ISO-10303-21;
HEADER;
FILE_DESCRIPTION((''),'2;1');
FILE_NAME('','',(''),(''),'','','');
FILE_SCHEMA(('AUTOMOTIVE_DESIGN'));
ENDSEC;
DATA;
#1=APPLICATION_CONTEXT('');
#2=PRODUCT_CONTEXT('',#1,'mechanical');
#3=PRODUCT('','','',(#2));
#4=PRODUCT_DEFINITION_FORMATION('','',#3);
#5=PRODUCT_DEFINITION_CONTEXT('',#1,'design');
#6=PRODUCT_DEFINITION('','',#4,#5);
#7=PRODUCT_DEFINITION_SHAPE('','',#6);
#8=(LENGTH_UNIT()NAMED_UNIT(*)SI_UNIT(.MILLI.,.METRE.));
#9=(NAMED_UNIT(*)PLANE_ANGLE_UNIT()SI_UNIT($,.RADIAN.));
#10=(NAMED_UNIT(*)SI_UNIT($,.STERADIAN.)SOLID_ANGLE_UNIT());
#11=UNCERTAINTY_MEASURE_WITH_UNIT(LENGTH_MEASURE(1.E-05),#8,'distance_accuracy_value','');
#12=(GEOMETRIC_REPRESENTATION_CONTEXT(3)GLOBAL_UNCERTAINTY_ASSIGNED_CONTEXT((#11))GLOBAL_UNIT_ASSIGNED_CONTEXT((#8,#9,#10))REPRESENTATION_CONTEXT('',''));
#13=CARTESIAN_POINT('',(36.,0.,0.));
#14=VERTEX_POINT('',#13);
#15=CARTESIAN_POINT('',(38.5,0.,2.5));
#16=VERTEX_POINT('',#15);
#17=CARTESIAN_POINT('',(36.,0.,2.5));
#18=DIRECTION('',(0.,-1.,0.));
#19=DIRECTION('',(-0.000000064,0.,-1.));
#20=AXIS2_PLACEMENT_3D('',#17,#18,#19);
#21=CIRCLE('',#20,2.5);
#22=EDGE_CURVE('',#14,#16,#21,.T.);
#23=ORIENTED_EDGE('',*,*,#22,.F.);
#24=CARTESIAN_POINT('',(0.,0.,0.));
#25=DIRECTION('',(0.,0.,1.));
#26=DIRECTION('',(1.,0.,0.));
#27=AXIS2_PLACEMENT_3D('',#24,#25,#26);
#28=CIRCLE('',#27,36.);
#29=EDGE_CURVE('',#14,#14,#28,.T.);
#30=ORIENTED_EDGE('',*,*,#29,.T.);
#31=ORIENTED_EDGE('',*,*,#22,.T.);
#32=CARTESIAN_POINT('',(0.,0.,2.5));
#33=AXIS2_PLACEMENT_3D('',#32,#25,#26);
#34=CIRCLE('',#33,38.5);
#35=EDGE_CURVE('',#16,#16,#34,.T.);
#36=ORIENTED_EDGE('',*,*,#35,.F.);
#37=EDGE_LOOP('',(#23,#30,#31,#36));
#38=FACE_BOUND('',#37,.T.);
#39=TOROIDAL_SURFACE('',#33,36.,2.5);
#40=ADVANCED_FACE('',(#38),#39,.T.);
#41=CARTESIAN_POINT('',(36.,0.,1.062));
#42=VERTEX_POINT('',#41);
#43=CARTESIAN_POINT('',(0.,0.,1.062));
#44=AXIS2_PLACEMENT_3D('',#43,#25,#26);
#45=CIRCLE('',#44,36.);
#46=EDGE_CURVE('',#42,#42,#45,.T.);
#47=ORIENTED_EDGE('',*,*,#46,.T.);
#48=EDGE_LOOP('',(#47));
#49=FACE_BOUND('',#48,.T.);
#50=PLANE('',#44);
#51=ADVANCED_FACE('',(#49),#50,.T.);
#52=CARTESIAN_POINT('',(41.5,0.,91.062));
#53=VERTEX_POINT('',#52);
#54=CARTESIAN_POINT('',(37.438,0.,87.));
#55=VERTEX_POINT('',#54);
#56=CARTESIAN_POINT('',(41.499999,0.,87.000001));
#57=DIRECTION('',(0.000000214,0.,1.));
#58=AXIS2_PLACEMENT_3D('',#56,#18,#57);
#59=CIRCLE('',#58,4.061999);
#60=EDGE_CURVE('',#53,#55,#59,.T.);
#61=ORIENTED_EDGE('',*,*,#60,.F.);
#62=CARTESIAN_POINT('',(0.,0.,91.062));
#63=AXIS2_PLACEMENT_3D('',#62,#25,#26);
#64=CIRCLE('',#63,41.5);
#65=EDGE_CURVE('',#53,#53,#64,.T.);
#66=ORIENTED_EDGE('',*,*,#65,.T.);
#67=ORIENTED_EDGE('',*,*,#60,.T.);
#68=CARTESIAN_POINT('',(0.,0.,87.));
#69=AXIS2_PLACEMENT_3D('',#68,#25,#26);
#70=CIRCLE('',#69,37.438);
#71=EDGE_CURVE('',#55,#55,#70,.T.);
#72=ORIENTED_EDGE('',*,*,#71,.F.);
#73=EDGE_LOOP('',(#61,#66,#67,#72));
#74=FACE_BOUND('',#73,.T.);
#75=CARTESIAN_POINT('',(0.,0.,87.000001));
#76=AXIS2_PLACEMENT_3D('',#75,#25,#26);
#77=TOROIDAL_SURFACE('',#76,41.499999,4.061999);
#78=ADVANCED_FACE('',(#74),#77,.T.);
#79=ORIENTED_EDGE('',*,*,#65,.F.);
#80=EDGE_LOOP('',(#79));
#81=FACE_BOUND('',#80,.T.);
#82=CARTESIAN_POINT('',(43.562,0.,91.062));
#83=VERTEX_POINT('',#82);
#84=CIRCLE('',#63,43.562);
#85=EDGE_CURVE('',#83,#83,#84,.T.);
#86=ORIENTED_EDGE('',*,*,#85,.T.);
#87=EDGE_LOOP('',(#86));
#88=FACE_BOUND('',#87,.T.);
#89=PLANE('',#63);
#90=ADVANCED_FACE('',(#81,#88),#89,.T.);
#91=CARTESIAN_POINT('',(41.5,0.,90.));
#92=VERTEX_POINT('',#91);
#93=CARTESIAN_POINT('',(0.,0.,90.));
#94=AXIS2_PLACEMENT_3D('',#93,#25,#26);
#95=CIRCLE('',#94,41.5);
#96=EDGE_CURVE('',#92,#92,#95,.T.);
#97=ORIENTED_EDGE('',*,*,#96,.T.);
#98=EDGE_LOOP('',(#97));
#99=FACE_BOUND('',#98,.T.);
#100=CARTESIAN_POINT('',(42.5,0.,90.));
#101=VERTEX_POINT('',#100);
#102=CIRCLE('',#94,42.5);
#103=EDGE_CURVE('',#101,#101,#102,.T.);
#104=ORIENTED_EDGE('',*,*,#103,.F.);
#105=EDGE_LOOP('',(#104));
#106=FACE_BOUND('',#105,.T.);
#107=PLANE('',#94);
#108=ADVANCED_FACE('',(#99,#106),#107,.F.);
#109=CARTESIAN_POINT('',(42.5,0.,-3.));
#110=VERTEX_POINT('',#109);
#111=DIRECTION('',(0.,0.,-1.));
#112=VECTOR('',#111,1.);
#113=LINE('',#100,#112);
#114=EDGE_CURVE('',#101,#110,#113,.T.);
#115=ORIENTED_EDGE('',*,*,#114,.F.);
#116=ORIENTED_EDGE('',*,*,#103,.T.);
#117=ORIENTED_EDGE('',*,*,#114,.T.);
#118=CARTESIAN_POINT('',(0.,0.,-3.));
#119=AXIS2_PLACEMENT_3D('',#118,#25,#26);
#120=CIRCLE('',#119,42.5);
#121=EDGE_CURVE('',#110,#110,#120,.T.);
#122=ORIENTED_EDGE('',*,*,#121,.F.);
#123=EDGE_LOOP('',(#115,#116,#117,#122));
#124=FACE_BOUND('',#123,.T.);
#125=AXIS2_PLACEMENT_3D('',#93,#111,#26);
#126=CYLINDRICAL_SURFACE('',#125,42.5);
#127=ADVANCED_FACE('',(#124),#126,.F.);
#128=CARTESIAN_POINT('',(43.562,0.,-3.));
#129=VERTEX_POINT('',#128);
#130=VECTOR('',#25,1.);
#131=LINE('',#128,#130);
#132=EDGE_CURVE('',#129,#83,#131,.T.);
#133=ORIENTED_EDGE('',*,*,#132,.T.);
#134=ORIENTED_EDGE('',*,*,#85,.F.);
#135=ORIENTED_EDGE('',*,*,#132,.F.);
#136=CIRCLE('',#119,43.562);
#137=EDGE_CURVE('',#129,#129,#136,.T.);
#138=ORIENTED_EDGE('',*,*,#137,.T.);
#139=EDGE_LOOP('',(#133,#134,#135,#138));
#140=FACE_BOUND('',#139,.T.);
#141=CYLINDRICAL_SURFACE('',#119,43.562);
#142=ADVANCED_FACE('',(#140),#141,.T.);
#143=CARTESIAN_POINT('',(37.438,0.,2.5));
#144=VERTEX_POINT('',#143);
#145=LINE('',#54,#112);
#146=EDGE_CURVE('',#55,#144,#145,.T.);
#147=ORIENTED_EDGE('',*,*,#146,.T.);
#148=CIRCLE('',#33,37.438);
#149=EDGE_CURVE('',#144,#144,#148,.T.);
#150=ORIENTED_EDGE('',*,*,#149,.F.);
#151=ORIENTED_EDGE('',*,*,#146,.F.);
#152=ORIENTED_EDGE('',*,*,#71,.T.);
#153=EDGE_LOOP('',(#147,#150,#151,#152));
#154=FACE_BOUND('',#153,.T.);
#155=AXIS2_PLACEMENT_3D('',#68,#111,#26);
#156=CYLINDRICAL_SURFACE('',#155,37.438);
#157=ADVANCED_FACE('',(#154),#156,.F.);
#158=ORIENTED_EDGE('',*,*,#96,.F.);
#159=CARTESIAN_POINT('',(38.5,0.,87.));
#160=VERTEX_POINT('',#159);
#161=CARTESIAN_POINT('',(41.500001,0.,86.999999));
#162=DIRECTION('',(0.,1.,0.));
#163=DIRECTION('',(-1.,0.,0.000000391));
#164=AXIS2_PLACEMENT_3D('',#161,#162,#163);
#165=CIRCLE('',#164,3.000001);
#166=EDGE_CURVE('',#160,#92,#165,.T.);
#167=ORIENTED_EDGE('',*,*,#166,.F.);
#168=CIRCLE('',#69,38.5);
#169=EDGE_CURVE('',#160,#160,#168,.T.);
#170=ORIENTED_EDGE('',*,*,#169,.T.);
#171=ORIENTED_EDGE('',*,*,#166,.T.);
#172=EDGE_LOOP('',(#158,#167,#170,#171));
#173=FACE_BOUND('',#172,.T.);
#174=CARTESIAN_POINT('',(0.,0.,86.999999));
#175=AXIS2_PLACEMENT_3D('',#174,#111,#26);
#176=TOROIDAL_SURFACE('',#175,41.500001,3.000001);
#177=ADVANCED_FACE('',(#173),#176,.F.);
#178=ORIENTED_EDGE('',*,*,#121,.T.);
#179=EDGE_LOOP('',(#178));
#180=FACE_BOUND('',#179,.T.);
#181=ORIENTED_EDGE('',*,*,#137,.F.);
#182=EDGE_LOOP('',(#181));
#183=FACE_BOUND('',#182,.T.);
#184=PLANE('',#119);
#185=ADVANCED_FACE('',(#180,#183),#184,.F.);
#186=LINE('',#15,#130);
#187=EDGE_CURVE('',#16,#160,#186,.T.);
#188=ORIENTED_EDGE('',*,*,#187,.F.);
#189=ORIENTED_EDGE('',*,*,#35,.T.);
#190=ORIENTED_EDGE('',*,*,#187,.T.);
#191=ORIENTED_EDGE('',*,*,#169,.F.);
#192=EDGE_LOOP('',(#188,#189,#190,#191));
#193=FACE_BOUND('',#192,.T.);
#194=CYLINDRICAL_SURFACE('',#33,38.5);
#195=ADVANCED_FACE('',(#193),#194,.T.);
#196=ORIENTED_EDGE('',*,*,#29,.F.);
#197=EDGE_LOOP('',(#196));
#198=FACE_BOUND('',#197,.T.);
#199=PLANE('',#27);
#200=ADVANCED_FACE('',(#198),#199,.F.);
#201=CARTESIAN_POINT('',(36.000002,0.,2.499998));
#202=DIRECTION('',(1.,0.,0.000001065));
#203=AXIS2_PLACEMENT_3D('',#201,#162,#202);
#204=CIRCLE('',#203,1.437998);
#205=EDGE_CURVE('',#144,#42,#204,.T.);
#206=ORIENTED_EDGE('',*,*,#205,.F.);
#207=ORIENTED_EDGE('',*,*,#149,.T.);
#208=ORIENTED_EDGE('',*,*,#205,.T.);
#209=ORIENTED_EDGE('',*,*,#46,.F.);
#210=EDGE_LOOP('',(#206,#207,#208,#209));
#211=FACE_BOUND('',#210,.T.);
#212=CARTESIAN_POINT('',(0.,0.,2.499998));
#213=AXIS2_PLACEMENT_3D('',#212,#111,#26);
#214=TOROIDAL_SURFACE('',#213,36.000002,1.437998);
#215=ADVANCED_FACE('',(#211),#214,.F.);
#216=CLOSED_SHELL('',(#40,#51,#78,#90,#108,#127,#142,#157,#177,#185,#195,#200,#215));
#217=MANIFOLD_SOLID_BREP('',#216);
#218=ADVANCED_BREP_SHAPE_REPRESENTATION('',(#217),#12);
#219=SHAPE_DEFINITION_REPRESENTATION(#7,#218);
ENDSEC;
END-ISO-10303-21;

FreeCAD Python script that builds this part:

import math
import FreeCAD as App
import Part
import Sketcher

doc = App.newDocument("Part")
body = doc.addObject("PartDesign::Body", "Body")

sketch1 = body.newObject("Sketcher::SketchObject", "Sketch")
sketch1.AttachmentSupport = (doc.getObject("XZ_Plane"), [""])
sketch1.MapMode = "FlatFace"
sketch1.addGeometry([
    Part.LineSegment(App.Vector(0, 1.1, 0), App.Vector(0, 0, 0)),
    Part.LineSegment(App.Vector(0, 0, 0), App.Vector(36, 0, 0)),
    Part.ArcOfCircle(Part.Circle(App.Vector(36, 2.5, 0), App.Vector(0, 0, 1), 2.5), math.radians(-90), math.radians(0)),
    Part.LineSegment(App.Vector(38.5, 2.5, 0), App.Vector(38.5, 87, 0)),
    Part.ArcOfCircle(Part.Circle(App.Vector(41.5, 87, 0), App.Vector(0, 0, 1), 3), math.radians(90), math.radians(180)),
    Part.LineSegment(App.Vector(41.5, 90, 0), App.Vector(42.5, 90, 0)),
    Part.LineSegment(App.Vector(42.5, 90, 0), App.Vector(42.5, -3, 0)),
    Part.LineSegment(App.Vector(42.5, -3, 0), App.Vector(43.6, -3, 0)),
    Part.LineSegment(App.Vector(43.6, -3, 0), App.Vector(43.6, 91.1, 0)),
    Part.LineSegment(App.Vector(43.6, 91.1, 0), App.Vector(41.5, 91.1, 0)),
    Part.ArcOfCircle(Part.Circle(App.Vector(41.5, 87, 0), App.Vector(0, 0, 1), 4.1), math.radians(90), math.radians(180)),
    Part.LineSegment(App.Vector(37.4, 87, 0), App.Vector(37.4, 2.5, 0)),
    Part.ArcOfCircle(Part.Circle(App.Vector(36, 2.5, 0), App.Vector(0, 0, 1), 1.4), math.radians(-90), math.radians(0)),
    Part.LineSegment(App.Vector(36, 1.1, 0), App.Vector(0, 1.1, 0)),
], False)
sketch1.addConstraint([
    Sketcher.Constraint("Coincident", 0, 2, 1, 1),
    Sketcher.Constraint("Tangent", 1, 2, 2, 1),
    Sketcher.Constraint("Tangent", 2, 2, 3, 1),
    Sketcher.Constraint("Tangent", 3, 2, 4, 2),
    Sketcher.Constraint("Tangent", 4, 1, 5, 1),
    Sketcher.Constraint("Coincident", 5, 2, 6, 1),
    Sketcher.Constraint("Coincident", 6, 2, 7, 1),
    Sketcher.Constraint("Coincident", 7, 2, 8, 1),
    Sketcher.Constraint("Coincident", 8, 2, 9, 1),
    Sketcher.Constraint("Tangent", 9, 2, 10, 1),
    Sketcher.Constraint("Tangent", 10, 2, 11, 1),
    Sketcher.Constraint("Tangent", 11, 2, 12, 2),
    Sketcher.Constraint("Tangent", 12, 1, 13, 1),
    Sketcher.Constraint("Coincident", 13, 2, 0, 1),
    Sketcher.Constraint("Vertical", 0),
    Sketcher.Constraint("Horizontal", 1),
    Sketcher.Constraint("Vertical", 3),
    Sketcher.Constraint("Horizontal", 5),
    Sketcher.Constraint("Vertical", 6),
    Sketcher.Constraint("Horizontal", 7),
    Sketcher.Constraint("Vertical", 8),
    Sketcher.Constraint("Horizontal", 9),
    Sketcher.Constraint("Vertical", 11),
    Sketcher.Constraint("Horizontal", 13),
    Sketcher.Constraint("Coincident", 0, 2, -1, 1),
    Sketcher.Constraint("Coincident", 10, 3, 4, 3),
    Sketcher.Constraint("Coincident", 12, 3, 2, 3),
    Sketcher.Constraint("Equal", 7, 0),
    Sketcher.Constraint("Radius", 4, 3.000001),
    Sketcher.Constraint("Radius", 2, 2.5),
    Sketcher.Constraint("DistanceX", 1, 1, 1, 2, 36.0),
    Sketcher.Constraint("DistanceX", 5, 1, 5, 2, 1.0),
    Sketcher.Constraint("DistanceY", 6, 2, 6, 1, 93.0),
    Sketcher.Constraint("DistanceY", 3, 1, 3, 2, 84.5),
    Sketcher.Constraint("Radius", 10, 4.061999),
])
revolution = body.newObject("PartDesign::Revolution", "Revolution")
revolution.Profile = sketch1
revolution.ReferenceAxis = (sketch1, ["V_Axis"])
revolution.Angle = 360

doc.recompute()
